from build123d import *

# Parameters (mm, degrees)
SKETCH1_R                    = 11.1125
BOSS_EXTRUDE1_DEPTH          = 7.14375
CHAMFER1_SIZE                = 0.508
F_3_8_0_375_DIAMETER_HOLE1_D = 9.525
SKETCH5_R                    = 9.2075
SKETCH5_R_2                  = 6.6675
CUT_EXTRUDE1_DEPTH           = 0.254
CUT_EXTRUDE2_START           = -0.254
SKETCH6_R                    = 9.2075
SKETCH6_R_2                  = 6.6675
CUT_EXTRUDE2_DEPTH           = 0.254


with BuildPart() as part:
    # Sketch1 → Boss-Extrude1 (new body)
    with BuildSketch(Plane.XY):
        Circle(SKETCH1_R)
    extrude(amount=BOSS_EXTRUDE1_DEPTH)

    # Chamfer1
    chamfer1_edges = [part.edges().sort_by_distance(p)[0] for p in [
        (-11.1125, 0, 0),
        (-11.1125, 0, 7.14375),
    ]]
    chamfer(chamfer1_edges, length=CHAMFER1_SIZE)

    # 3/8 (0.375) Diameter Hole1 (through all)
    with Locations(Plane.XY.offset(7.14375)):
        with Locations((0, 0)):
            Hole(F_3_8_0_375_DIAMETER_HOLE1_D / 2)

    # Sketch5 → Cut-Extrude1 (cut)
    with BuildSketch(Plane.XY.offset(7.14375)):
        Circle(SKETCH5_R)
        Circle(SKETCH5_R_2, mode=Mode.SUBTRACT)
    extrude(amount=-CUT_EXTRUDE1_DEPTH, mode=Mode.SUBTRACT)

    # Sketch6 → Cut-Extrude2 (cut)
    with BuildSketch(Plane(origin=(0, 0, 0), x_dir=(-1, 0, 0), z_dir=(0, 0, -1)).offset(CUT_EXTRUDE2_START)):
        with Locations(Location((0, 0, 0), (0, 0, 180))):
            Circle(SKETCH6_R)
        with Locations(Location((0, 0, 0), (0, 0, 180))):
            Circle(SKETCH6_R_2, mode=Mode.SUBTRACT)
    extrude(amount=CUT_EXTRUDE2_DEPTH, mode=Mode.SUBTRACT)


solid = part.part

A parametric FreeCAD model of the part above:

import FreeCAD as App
import Part
import Sketcher
Q = App.Units.Quantity


def edges_at(feature, points):
    """Names of the edges that pass closest to the given points."""
    edges = feature.Shape.Edges
    near = lambda p: min(range(len(edges)), key=lambda i: edges[i].distToShape(Part.Vertex(*p))[0])
    return sorted({f"Edge{near(p) + 1}" for p in points})

doc = App.newDocument("Part")
body = doc.addObject("PartDesign::Body", "Body")

sketch1 = body.newObject("Sketcher::SketchObject", "Sketch")
sketch1.AttachmentSupport = (doc.getObject("XY_Plane"), [""])
sketch1.MapMode = "FlatFace"
sketch1.addGeometry(Part.Circle(App.Vector(0, 0, 0), App.Vector(0, 0, 1), 11), False)
sketch1.addConstraint(Sketcher.Constraint("Coincident", 0, 3, -1, 1))
sketch1.addConstraint(Sketcher.Constraint("Diameter", 0, Q("0.875 in")))
pad1 = body.newObject("PartDesign::Pad", "Pad")
pad1.Profile = sketch1
pad1.Length = Q("0.28125 in")
doc.recompute()

chamfer = body.newObject("PartDesign::Chamfer", "Chamfer")
chamfer.Base = (pad1, edges_at(pad1, [(-11.113, 0, 0), (-11.113, 0, 7.144)]))
chamfer.Size = Q("0.02 in")

sketch2 = body.newObject("Sketcher::SketchObject", "Sketch001")
sketch2.AttachmentSupport = (doc.getObject("XY_Plane"), [""])
sketch2.MapMode = "FlatFace"
sketch2.AttachmentOffset = App.Placement(App.Vector(0, 0, 0.28125 * 25.4), App.Rotation())
sketch2.addGeometry(Part.Circle(App.Vector(0, 0, 0), App.Vector(0, 0, 1), 4.8), False)
sketch2.addConstraint(Sketcher.Constraint("Coincident", 0, 3, -1, 1))
sketch2.addConstraint(Sketcher.Constraint("Diameter", 0, Q("0.375 in")))
doc.recompute()
hole = body.newObject("PartDesign::Hole", "Hole")
hole.Profile = sketch2
hole.ThreadType = "None"
hole.Diameter = Q("0.375 in")
hole.DepthType = "ThroughAll"

sketch3 = body.newObject("Sketcher::SketchObject", "Sketch002")
sketch3.AttachmentSupport = (doc.getObject("XY_Plane"), [""])
sketch3.MapMode = "FlatFace"
sketch3.AttachmentOffset = App.Placement(App.Vector(0, 0, 0.28125 * 25.4), App.Rotation())
sketch3.addGeometry(Part.Circle(App.Vector(0, 0, 0), App.Vector(0, 0, 1), 9), False)
sketch3.addGeometry(Part.Circle(App.Vector(0, 0, 0), App.Vector(0, 0, 1), 7), False)
sketch3.addConstraint(Sketcher.Constraint("Coincident", 0, 3, -1, 1))
sketch3.addConstraint(Sketcher.Constraint("Coincident", 1, 3, -1, 1))
sketch3.addConstraint(Sketcher.Constraint("Diameter", 0, Q("0.725 in")))
sketch3.addConstraint(Sketcher.Constraint("Diameter", 1, Q("0.525 in")))
pocket1 = body.newObject("PartDesign::Pocket", "Pocket")
pocket1.Profile = sketch3
pocket1.Length = Q("0.01 in")

sketch4 = body.newObject("Sketcher::SketchObject", "Sketch003")
sketch4.AttachmentSupport = (doc.getObject("XY_Plane"), [""])
sketch4.MapMode = "FlatFace"
sketch4.AttachmentOffset = App.Placement(App.Vector(0, 0, 0.01 * 25.4), App.Rotation())
sketch4.addGeometry(Part.Circle(App.Vector(0, 0, 0), App.Vector(0, 0, 1), 9), False)
sketch4.addGeometry(Part.Circle(App.Vector(0, 0, 0), App.Vector(0, 0, 1), 7), False)
sketch4.addConstraint(Sketcher.Constraint("Coincident", 0, 3, -1, 1))
sketch4.addConstraint(Sketcher.Constraint("Coincident", 1, 3, -1, 1))
sketch4.addConstraint(Sketcher.Constraint("Diameter", 0, Q("0.725 in")))
sketch4.addConstraint(Sketcher.Constraint("Diameter", 1, Q("0.525 in")))
pocket2 = body.newObject("PartDesign::Pocket", "Pocket001")
pocket2.Profile = sketch4
pocket2.Length = Q("0.01 in")

doc.recompute()
